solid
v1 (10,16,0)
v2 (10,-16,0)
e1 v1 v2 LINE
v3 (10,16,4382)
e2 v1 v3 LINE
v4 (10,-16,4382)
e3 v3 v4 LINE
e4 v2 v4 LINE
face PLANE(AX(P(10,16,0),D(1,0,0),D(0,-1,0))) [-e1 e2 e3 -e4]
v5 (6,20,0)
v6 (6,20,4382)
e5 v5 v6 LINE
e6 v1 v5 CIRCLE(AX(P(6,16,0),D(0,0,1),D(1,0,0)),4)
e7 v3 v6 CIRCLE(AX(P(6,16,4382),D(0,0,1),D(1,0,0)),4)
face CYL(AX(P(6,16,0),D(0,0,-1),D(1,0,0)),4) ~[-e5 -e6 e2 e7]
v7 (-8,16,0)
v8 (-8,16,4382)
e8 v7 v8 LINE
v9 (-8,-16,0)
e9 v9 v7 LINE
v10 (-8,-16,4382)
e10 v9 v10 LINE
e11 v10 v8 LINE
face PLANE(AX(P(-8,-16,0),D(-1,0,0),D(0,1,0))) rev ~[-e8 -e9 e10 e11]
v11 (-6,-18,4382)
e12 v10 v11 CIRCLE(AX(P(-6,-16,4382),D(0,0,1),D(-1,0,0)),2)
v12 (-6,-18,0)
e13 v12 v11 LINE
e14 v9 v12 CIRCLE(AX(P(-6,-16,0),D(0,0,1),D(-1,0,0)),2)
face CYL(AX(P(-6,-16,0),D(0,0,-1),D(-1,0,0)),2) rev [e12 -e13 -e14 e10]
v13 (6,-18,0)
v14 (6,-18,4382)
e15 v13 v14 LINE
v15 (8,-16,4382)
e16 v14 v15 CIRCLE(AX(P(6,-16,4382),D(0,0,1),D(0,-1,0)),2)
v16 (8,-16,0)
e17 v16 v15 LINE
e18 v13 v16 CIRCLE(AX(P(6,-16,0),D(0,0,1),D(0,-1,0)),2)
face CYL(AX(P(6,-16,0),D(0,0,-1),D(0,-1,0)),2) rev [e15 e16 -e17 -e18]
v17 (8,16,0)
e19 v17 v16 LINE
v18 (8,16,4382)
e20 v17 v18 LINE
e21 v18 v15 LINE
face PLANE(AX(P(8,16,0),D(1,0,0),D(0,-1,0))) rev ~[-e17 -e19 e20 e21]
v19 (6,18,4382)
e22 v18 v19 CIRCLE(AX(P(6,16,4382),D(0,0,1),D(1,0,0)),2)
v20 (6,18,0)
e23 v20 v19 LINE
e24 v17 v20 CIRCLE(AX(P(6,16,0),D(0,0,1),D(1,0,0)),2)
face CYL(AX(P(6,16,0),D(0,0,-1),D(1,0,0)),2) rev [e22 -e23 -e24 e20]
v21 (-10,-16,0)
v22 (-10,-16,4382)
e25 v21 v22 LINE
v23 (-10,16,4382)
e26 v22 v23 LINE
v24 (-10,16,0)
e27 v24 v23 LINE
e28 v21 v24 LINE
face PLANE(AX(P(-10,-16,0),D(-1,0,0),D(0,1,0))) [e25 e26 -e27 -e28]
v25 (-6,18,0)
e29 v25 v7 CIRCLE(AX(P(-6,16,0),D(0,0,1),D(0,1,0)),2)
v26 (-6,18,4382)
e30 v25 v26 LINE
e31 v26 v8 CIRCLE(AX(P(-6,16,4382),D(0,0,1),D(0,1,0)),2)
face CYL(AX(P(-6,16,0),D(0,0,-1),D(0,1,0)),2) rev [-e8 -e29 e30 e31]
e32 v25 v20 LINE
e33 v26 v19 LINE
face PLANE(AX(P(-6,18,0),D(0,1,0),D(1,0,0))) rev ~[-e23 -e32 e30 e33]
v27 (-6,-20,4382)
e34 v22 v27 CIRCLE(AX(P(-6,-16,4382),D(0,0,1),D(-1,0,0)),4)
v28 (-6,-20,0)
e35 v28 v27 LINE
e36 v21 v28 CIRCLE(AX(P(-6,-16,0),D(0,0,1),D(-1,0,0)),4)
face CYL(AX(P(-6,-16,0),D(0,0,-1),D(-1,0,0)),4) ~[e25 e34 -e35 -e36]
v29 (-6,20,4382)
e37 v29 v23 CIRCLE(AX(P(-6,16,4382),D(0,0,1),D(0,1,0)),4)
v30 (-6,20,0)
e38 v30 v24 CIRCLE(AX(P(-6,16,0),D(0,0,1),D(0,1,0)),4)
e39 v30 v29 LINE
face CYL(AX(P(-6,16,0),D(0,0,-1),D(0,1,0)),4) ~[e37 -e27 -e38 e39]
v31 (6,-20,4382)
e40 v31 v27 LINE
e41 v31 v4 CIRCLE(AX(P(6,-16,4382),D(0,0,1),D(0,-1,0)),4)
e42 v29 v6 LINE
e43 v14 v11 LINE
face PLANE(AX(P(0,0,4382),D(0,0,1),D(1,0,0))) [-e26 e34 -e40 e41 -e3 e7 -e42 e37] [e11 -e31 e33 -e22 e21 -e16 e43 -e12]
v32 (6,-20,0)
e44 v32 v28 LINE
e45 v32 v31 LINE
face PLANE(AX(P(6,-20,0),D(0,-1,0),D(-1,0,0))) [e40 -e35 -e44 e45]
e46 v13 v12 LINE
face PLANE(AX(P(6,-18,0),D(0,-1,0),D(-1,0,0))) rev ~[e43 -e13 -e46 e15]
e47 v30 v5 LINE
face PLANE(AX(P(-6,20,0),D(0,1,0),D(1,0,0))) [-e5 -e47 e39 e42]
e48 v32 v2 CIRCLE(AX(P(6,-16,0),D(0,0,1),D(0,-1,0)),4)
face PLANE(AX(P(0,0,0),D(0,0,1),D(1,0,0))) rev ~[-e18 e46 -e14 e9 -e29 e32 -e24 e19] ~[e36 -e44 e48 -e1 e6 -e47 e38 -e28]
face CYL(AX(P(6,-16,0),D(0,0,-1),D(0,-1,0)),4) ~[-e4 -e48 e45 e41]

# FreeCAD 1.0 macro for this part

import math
import FreeCAD as App
import Part
import Sketcher
from FreeCAD import Vector

doc = App.newDocument("Part")
body = doc.addObject("PartDesign::Body", "Body")

sketch1 = body.newObject("Sketcher::SketchObject", "Sketch")
sketch1.AttachmentSupport = (doc.getObject("XY_Plane"), [""])
sketch1.MapMode = "FlatFace"
sketch1.addGeometry([
    Part.LineSegment(Vector(-10, 16, 0), Vector(-10, -16, 0)),
    Part.ArcOfCircle(Part.Circle(Vector(-6, -16, 0), Vector(0, 0, 1), 4), math.radians(180), math.radians(270)),
    Part.LineSegment(Vector(-6, -20, 0), Vector(6, -20, 0)),
    Part.ArcOfCircle(Part.Circle(Vector(6, -16, 0), Vector(0, 0, 1), 4), math.radians(-90), math.radians(0)),
    Part.LineSegment(Vector(10, -16, 0), Vector(10, 16, 0)),
    Part.ArcOfCircle(Part.Circle(Vector(6, 16, 0), Vector(0, 0, 1), 4), math.radians(0), math.radians(90)),
    Part.LineSegment(Vector(6, 20, 0), Vector(-6, 20, 0)),
    Part.ArcOfCircle(Part.Circle(Vector(-6, 16, 0), Vector(0, 0, 1), 4), math.radians(90), math.radians(180)),
    Part.ArcOfCircle(Part.Circle(Vector(-6, 16, 0), Vector(0, 0, 1), 2), math.radians(90), math.radians(180)),
    Part.LineSegment(Vector(-6, 18, 0), Vector(6, 18, 0)),
    Part.ArcOfCircle(Part.Circle(Vector(6, 16, 0), Vector(0, 0, 1), 2), math.radians(0), math.radians(90)),
    Part.LineSegment(Vector(8, 16, 0), Vector(8, -16, 0)),
    Part.ArcOfCircle(Part.Circle(Vector(6, -16, 0), Vector(0, 0, 1), 2), math.radians(-90), math.radians(0)),
    Part.LineSegment(Vector(6, -18, 0), Vector(-6, -18, 0)),
    Part.ArcOfCircle(Part.Circle(Vector(-6, -16, 0), Vector(0, 0, 1), 2), math.radians(180), math.radians(270)),
    Part.LineSegment(Vector(-8, -16, 0), Vector(-8, 16, 0)),
], False)
sketch1.addConstraint([
    Sketcher.Constraint("Tangent", 0, 2, 1, 1),
    Sketcher.Constraint("Tangent", 1, 2, 2, 1),
    Sketcher.Constraint("Tangent", 2, 2, 3, 1),
    Sketcher.Constraint("Tangent", 3, 2, 4, 1),
    Sketcher.Constraint("Tangent", 4, 2, 5, 1),
    Sketcher.Constraint("Tangent", 5, 2, 6, 1),
    Sketcher.Constraint("Tangent", 6, 2, 7, 1),
    Sketcher.Constraint("Tangent", 7, 2, 0, 1),
    Sketcher.Constraint("Tangent", 8, 1, 9, 1),
    Sketcher.Constraint("Tangent", 9, 2, 10, 2),
    Sketcher.Constraint("Tangent", 10, 1, 11, 1),
    Sketcher.Constraint("Tangent", 11, 2, 12, 2),
    Sketcher.Constraint("Tangent", 12, 1, 13, 1),
    Sketcher.Constraint("Tangent", 13, 2, 14, 2),
    Sketcher.Constraint("Tangent", 14, 1, 15, 1),
    Sketcher.Constraint("Tangent", 15, 2, 8, 2),
    Sketcher.Constraint("Vertical", 0),
    Sketcher.Constraint("Horizontal", 2),
    Sketcher.Constraint("Vertical", 4),
    Sketcher.Constraint("Horizontal", 6),
    Sketcher.Constraint("Horizontal", 9),
    Sketcher.Constraint("Vertical", 11),
    Sketcher.Constraint("Horizontal", 13),
    Sketcher.Constraint("Vertical", 15),
    Sketcher.Constraint("Coincident", 8, 3, 7, 3),
    Sketcher.Constraint("Coincident", 10, 3, 5, 3),
    Sketcher.Constraint("Coincident", 12, 3, 3, 3),
    Sketcher.Constraint("Equal", 1, 3),
    Sketcher.Constraint("Equal", 3, 5),
    Sketcher.Constraint("Equal", 5, 7),
    Sketcher.Constraint("Equal", 12, 14),
    Sketcher.Constraint("Symmetric", 1, 3, 5, 3, -1, 1),
    Sketcher.Constraint("Radius", 1, 4.0),
    Sketcher.Constraint("Radius", 8, 2.0),
    Sketcher.Constraint("DistanceX", 0, 2, -1, 1, 10.0),
    Sketcher.Constraint("DistanceY", 1, 2, -1, 1, 20.0),
])
pad1 = body.newObject("PartDesign::Pad", "Pad")
pad1.Profile = sketch1
pad1.Length = 4382

doc.recompute()
